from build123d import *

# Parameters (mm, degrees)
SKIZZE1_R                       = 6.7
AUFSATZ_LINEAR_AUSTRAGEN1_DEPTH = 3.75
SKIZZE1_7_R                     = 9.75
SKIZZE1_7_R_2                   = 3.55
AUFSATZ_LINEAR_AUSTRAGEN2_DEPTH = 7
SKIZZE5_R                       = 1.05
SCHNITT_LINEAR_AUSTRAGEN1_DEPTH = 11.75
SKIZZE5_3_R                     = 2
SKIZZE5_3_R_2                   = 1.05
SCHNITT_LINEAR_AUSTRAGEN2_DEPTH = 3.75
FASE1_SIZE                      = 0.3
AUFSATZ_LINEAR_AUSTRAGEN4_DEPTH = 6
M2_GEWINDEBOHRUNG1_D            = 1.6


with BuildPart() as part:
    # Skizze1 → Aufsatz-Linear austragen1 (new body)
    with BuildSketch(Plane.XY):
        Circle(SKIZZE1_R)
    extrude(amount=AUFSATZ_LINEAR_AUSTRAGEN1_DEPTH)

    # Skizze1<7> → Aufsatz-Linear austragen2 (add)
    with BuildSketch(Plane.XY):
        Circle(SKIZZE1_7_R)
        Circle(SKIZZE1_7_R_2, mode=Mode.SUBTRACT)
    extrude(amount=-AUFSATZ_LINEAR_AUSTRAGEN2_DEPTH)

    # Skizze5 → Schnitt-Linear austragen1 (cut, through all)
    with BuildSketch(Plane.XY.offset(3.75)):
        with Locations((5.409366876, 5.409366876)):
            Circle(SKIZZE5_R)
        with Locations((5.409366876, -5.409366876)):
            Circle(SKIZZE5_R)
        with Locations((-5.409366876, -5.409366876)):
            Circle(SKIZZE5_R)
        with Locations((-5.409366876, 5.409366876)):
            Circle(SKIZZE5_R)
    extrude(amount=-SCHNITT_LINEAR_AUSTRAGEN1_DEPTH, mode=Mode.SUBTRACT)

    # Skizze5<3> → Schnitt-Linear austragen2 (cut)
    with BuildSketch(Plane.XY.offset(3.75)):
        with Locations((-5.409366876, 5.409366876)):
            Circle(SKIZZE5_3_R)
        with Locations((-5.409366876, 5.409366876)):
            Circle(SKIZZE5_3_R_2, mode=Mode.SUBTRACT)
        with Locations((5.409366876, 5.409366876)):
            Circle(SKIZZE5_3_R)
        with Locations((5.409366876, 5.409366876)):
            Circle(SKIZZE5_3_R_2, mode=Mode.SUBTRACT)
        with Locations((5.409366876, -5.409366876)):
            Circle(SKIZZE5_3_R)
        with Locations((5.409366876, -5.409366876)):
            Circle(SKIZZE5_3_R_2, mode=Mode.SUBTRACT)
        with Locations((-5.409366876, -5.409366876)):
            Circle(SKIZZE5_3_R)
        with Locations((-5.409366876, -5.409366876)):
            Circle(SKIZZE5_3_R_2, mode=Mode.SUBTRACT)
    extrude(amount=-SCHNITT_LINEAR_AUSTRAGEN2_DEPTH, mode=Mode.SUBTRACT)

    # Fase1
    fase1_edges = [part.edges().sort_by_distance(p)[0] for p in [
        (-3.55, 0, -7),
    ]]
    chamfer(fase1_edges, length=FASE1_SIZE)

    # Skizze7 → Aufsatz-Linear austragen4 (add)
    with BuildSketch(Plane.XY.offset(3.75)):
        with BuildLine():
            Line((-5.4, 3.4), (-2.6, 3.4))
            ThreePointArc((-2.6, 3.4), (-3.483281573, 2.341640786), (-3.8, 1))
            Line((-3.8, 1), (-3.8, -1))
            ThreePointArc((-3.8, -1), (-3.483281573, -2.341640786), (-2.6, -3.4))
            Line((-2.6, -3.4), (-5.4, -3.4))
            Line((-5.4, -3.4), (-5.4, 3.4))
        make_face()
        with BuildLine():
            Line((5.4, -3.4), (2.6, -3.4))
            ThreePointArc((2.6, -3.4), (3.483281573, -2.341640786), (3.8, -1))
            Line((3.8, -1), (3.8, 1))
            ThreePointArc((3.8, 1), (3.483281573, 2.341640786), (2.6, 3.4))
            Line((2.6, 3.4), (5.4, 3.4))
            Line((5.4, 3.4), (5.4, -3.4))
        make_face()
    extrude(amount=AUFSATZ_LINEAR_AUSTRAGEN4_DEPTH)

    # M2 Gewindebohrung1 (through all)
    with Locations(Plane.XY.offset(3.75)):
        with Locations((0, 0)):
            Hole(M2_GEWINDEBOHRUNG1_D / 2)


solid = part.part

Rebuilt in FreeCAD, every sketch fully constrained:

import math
import FreeCAD as App
import Part
import Sketcher
from FreeCAD import Vector


def edges_at(feature, points):
    """Names of the edges that pass closest to the given points."""
    edges = feature.Shape.Edges
    near = lambda p: min(range(len(edges)), key=lambda i: edges[i].distToShape(Part.Vertex(*p))[0])
    return sorted({f"Edge{near(p) + 1}" for p in points})

doc = App.newDocument("Part")
body = doc.addObject("PartDesign::Body", "Body")

sketch1 = doc.addObject("Sketcher::SketchObject", "Sketch")
body.addObject(sketch1)
sketch1.AttachmentSupport = (doc.XY_Plane, [""])
sketch1.MapMode = "FlatFace"
sketch1.addGeometry(Part.Circle(Vector(0, 0, 0), Vector(0, 0, 1), 7), False)
sketch1.addConstraint([
    Sketcher.Constraint("Coincident", 0, 3, -1, 1),
    Sketcher.Constraint("Diameter", 0, 13.4),
])
pad1 = doc.addObject("PartDesign::Pad", "Pad")
body.addObject(pad1)
pad1.Profile = sketch1
pad1.Length = 3.75

sketch2 = doc.addObject("Sketcher::SketchObject", "Sketch001")
body.addObject(sketch2)
sketch2.AttachmentSupport = (doc.XY_Plane, [""])
sketch2.MapMode = "FlatFace"
sketch2.addGeometry([
    Part.Circle(Vector(0, 0, 0), Vector(0, 0, 1), 9.8),
    Part.Circle(Vector(0, 0, 0), Vector(0, 0, 1), 3.5),
], False)
sketch2.addConstraint([
    Sketcher.Constraint("Coincident", 0, 3, -1, 1),
    Sketcher.Constraint("Coincident", 1, 3, -1, 1),
    Sketcher.Constraint("Diameter", 0, 19.5),
    Sketcher.Constraint("Diameter", 1, 7.1),
])
pad2 = doc.addObject("PartDesign::Pad", "Pad001")
body.addObject(pad2)
pad2.Profile = sketch2
pad2.Length = 7
pad2.Reversed = True

sketch3 = doc.addObject("Sketcher::SketchObject", "Sketch002")
body.addObject(sketch3)
sketch3.AttachmentSupport = (doc.XY_Plane, [""])
sketch3.MapMode = "FlatFace"
sketch3.AttachmentOffset = App.Placement(Vector(0, 0, 3.75), App.Rotation())
sketch3.addGeometry([
    Part.Circle(Vector(5.4, 5.4, 0), Vector(0, 0, 1), 1.1),
    Part.Circle(Vector(5.4, -5.4, 0), Vector(0, 0, 1), 1.1),
    Part.Circle(Vector(-5.4, -5.4, 0), Vector(0, 0, 1), 1.1),
    Part.Circle(Vector(-5.4, 5.4, 0), Vector(0, 0, 1), 1.1),
], False)
sketch3.addConstraint([
    Sketcher.Constraint("Equal", 0, 1),
    Sketcher.Constraint("Equal", 1, 2),
    Sketcher.Constraint("Equal", 2, 3),
    Sketcher.Constraint("Symmetric", 0, 3, 2, 3, -1, 1),
    Sketcher.Constraint("Symmetric", 1, 3, 3, 3, -1, 1),
    Sketcher.Constraint("Symmetric", 1, 3, 2, 3, -2),
    Sketcher.Constraint("Diameter", 0, 2.1),
    Sketcher.Constraint("DistanceX", -1, 1, 0, 3, 5.409367),
    Sketcher.Constraint("DistanceY", -1, 1, 0, 3, 5.409367),
])
pocket1 = doc.addObject("PartDesign::Pocket", "Pocket")
body.addObject(pocket1)
pocket1.Profile = sketch3
pocket1.Type = "ThroughAll"

sketch4 = doc.addObject("Sketcher::SketchObject", "Sketch003")
body.addObject(sketch4)
sketch4.AttachmentSupport = (doc.XY_Plane, [""])
sketch4.MapMode = "FlatFace"
sketch4.AttachmentOffset = App.Placement(Vector(0, 0, 3.75), App.Rotation())
sketch4.addGeometry([
    Part.Circle(Vector(-5.4, 5.4, 0), Vector(0, 0, 1), 2),
    Part.Circle(Vector(-5.4, 5.4, 0), Vector(0, 0, 1), 1.1),
    Part.Circle(Vector(5.4, 5.4, 0), Vector(0, 0, 1), 2),
    Part.Circle(Vector(5.4, 5.4, 0), Vector(0, 0, 1), 1.1),
    Part.Circle(Vector(5.4, -5.4, 0), Vector(0, 0, 1), 2),
    Part.Circle(Vector(5.4, -5.4, 0), Vector(0, 0, 1), 1.1),
    Part.Circle(Vector(-5.4, -5.4, 0), Vector(0, 0, 1), 2),
    Part.Circle(Vector(-5.4, -5.4, 0), Vector(0, 0, 1), 1.1),
], False)
sketch4.addConstraint([
    Sketcher.Constraint("Coincident", 1, 3, 0, 3),
    Sketcher.Constraint("Coincident", 3, 3, 2, 3),
    Sketcher.Constraint("Coincident", 5, 3, 4, 3),
    Sketcher.Constraint("Coincident", 7, 3, 6, 3),
    Sketcher.Constraint("Equal", 0, 2),
    Sketcher.Constraint("Equal", 1, 3),
    Sketcher.Constraint("Equal", 2, 4),
    Sketcher.Constraint("Equal", 3, 5),
    Sketcher.Constraint("Equal", 4, 6),
    Sketcher.Constraint("Equal", 5, 7),
    Sketcher.Constraint("Symmetric", 0, 3, 4, 3, -1, 1),
    Sketcher.Constraint("Symmetric", 2, 3, 6, 3, -1, 1),
    Sketcher.Constraint("Symmetric", 0, 3, 2, 3, -2),
    Sketcher.Constraint("Diameter", 0, 4.0),
    Sketcher.Constraint("Diameter", 1, 2.1),
    Sketcher.Constraint("DistanceX", 0, 3, -1, 1, 5.409367),
    Sketcher.Constraint("DistanceY", -1, 1, 0, 3, 5.409367),
])
pocket2 = doc.addObject("PartDesign::Pocket", "Pocket001")
body.addObject(pocket2)
pocket2.Profile = sketch4
pocket2.Length = 3.75
doc.recompute()

chamfer = doc.addObject("PartDesign::Chamfer", "Chamfer")
body.addObject(chamfer)
chamfer.Base = (pocket2, edges_at(pocket2, [(-3.55, 0, -7)]))
chamfer.Size = 0.3

sketch5 = doc.addObject("Sketcher::SketchObject", "Sketch004")
body.addObject(sketch5)
sketch5.AttachmentSupport = (doc.XY_Plane, [""])
sketch5.MapMode = "FlatFace"
sketch5.AttachmentOffset = App.Placement(Vector(0, 0, 3.75), App.Rotation())
sketch5.addGeometry([
    Part.LineSegment(Vector(-2.6, 3.4, 0), Vector(-5.4, 3.4, 0)),
    Part.LineSegment(Vector(-5.4, 3.4, 0), Vector(-5.4, -3.4, 0)),
    Part.LineSegment(Vector(-5.4, -3.4, 0), Vector(-2.6, -3.4, 0)),
    Part.ArcOfCircle(Part.Circle(Vector(-0.8, -1, 0), Vector(0, 0, 1), 3), math.radians(-180), math.radians(-127)),
    Part.LineSegment(Vector(-3.8, -1, 0), Vector(-3.8, 1, 0)),
    Part.ArcOfCircle(Part.Circle(Vector(-0.8, 1, 0), Vector(0, 0, 1), 3), math.radians(127), math.radians(180)),
    Part.LineSegment(Vector(2.6, -3.4, 0), Vector(5.4, -3.4, 0)),
    Part.LineSegment(Vector(5.4, -3.4, 0), Vector(5.4, 3.4, 0)),
    Part.LineSegment(Vector(5.4, 3.4, 0), Vector(2.6, 3.4, 0)),
    Part.ArcOfCircle(Part.Circle(Vector(0.8, 1, 0), Vector(0, 0, 1), 3), math.radians(0), math.radians(53)),
    Part.LineSegment(Vector(3.8, 1, 0), Vector(3.8, -1, 0)),
    Part.ArcOfCircle(Part.Circle(Vector(0.8, -1, 0), Vector(0, 0, 1), 3), math.radians(-53), math.radians(0)),
], False)
sketch5.addConstraint([
    Sketcher.Constraint("Coincident", 0, 2, 1, 1),
    Sketcher.Constraint("Coincident", 1, 2, 2, 1),
    Sketcher.Constraint("Coincident", 2, 2, 3, 2),
    Sketcher.Constraint("Tangent", 3, 1, 4, 1),
    Sketcher.Constraint("Tangent", 4, 2, 5, 2),
    Sketcher.Constraint("Coincident", 5, 1, 0, 1),
    Sketcher.Constraint("Coincident", 6, 2, 7, 1),
    Sketcher.Constraint("Coincident", 7, 2, 8, 1),
    Sketcher.Constraint("Coincident", 8, 2, 9, 2),
    Sketcher.Constraint("Tangent", 9, 1, 10, 1),
    Sketcher.Constraint("Tangent", 10, 2, 11, 2),
    Sketcher.Constraint("Coincident", 11, 1, 6, 1),
    Sketcher.Constraint("Horizontal", 0),
    Sketcher.Constraint("Vertical", 1),
    Sketcher.Constraint("Horizontal", 2),
    Sketcher.Constraint("Vertical", 4),
    Sketcher.Constraint("Horizontal", 6),
    Sketcher.Constraint("Vertical", 7),
    Sketcher.Constraint("Horizontal", 8),
    Sketcher.Constraint("Vertical", 10),
    Sketcher.Constraint("Equal", 3, 5),
    Sketcher.Constraint("Equal", 5, 9),
    Sketcher.Constraint("Equal", 9, 11),
    Sketcher.Constraint("Symmetric", 3, 3, 9, 3, -1, 1),
    Sketcher.Constraint("Symmetric", 0, 2, 6, 2, -1, 1),
    Sketcher.Constraint("Symmetric", 5, 1, 8, 2, -2),
    Sketcher.Constraint("Symmetric", 2, 2, 11, 1, -2),
    Sketcher.Constraint("Radius", 3, 3.0),
    Sketcher.Constraint("DistanceY", 4, 1, 4, 2, 2.0),
    Sketcher.Constraint("DistanceX", 0, 2, 0, 1, 2.8),
    Sketcher.Constraint("DistanceY", 1, 2, 1, 1, 6.8),
    Sketcher.Constraint("DistanceX", 2, 2, 6, 2, 8.0),
])
pad3 = doc.addObject("PartDesign::Pad", "Pad002")
body.addObject(pad3)
pad3.Profile = sketch5
pad3.Length = 6

sketch6 = doc.addObject("Sketcher::SketchObject", "Sketch005")
body.addObject(sketch6)
sketch6.AttachmentSupport = (doc.XY_Plane, [""])
sketch6.MapMode = "FlatFace"
sketch6.AttachmentOffset = App.Placement(Vector(0, 0, 3.75), App.Rotation())
sketch6.addGeometry(Part.Circle(Vector(0, 0, 0), Vector(0, 0, 1), 0.8), False)
sketch6.addConstraint([
    Sketcher.Constraint("Coincident", 0, 3, -1, 1),
    Sketcher.Constraint("Diameter", 0, 1.6),
])
doc.recompute()
hole = doc.addObject("PartDesign::Hole", "Hole")
body.addObject(hole)
hole.Profile = sketch6
hole.ThreadType = "None"
hole.Diameter = 1.6
hole.DepthType = "ThroughAll"

doc.recompute()
